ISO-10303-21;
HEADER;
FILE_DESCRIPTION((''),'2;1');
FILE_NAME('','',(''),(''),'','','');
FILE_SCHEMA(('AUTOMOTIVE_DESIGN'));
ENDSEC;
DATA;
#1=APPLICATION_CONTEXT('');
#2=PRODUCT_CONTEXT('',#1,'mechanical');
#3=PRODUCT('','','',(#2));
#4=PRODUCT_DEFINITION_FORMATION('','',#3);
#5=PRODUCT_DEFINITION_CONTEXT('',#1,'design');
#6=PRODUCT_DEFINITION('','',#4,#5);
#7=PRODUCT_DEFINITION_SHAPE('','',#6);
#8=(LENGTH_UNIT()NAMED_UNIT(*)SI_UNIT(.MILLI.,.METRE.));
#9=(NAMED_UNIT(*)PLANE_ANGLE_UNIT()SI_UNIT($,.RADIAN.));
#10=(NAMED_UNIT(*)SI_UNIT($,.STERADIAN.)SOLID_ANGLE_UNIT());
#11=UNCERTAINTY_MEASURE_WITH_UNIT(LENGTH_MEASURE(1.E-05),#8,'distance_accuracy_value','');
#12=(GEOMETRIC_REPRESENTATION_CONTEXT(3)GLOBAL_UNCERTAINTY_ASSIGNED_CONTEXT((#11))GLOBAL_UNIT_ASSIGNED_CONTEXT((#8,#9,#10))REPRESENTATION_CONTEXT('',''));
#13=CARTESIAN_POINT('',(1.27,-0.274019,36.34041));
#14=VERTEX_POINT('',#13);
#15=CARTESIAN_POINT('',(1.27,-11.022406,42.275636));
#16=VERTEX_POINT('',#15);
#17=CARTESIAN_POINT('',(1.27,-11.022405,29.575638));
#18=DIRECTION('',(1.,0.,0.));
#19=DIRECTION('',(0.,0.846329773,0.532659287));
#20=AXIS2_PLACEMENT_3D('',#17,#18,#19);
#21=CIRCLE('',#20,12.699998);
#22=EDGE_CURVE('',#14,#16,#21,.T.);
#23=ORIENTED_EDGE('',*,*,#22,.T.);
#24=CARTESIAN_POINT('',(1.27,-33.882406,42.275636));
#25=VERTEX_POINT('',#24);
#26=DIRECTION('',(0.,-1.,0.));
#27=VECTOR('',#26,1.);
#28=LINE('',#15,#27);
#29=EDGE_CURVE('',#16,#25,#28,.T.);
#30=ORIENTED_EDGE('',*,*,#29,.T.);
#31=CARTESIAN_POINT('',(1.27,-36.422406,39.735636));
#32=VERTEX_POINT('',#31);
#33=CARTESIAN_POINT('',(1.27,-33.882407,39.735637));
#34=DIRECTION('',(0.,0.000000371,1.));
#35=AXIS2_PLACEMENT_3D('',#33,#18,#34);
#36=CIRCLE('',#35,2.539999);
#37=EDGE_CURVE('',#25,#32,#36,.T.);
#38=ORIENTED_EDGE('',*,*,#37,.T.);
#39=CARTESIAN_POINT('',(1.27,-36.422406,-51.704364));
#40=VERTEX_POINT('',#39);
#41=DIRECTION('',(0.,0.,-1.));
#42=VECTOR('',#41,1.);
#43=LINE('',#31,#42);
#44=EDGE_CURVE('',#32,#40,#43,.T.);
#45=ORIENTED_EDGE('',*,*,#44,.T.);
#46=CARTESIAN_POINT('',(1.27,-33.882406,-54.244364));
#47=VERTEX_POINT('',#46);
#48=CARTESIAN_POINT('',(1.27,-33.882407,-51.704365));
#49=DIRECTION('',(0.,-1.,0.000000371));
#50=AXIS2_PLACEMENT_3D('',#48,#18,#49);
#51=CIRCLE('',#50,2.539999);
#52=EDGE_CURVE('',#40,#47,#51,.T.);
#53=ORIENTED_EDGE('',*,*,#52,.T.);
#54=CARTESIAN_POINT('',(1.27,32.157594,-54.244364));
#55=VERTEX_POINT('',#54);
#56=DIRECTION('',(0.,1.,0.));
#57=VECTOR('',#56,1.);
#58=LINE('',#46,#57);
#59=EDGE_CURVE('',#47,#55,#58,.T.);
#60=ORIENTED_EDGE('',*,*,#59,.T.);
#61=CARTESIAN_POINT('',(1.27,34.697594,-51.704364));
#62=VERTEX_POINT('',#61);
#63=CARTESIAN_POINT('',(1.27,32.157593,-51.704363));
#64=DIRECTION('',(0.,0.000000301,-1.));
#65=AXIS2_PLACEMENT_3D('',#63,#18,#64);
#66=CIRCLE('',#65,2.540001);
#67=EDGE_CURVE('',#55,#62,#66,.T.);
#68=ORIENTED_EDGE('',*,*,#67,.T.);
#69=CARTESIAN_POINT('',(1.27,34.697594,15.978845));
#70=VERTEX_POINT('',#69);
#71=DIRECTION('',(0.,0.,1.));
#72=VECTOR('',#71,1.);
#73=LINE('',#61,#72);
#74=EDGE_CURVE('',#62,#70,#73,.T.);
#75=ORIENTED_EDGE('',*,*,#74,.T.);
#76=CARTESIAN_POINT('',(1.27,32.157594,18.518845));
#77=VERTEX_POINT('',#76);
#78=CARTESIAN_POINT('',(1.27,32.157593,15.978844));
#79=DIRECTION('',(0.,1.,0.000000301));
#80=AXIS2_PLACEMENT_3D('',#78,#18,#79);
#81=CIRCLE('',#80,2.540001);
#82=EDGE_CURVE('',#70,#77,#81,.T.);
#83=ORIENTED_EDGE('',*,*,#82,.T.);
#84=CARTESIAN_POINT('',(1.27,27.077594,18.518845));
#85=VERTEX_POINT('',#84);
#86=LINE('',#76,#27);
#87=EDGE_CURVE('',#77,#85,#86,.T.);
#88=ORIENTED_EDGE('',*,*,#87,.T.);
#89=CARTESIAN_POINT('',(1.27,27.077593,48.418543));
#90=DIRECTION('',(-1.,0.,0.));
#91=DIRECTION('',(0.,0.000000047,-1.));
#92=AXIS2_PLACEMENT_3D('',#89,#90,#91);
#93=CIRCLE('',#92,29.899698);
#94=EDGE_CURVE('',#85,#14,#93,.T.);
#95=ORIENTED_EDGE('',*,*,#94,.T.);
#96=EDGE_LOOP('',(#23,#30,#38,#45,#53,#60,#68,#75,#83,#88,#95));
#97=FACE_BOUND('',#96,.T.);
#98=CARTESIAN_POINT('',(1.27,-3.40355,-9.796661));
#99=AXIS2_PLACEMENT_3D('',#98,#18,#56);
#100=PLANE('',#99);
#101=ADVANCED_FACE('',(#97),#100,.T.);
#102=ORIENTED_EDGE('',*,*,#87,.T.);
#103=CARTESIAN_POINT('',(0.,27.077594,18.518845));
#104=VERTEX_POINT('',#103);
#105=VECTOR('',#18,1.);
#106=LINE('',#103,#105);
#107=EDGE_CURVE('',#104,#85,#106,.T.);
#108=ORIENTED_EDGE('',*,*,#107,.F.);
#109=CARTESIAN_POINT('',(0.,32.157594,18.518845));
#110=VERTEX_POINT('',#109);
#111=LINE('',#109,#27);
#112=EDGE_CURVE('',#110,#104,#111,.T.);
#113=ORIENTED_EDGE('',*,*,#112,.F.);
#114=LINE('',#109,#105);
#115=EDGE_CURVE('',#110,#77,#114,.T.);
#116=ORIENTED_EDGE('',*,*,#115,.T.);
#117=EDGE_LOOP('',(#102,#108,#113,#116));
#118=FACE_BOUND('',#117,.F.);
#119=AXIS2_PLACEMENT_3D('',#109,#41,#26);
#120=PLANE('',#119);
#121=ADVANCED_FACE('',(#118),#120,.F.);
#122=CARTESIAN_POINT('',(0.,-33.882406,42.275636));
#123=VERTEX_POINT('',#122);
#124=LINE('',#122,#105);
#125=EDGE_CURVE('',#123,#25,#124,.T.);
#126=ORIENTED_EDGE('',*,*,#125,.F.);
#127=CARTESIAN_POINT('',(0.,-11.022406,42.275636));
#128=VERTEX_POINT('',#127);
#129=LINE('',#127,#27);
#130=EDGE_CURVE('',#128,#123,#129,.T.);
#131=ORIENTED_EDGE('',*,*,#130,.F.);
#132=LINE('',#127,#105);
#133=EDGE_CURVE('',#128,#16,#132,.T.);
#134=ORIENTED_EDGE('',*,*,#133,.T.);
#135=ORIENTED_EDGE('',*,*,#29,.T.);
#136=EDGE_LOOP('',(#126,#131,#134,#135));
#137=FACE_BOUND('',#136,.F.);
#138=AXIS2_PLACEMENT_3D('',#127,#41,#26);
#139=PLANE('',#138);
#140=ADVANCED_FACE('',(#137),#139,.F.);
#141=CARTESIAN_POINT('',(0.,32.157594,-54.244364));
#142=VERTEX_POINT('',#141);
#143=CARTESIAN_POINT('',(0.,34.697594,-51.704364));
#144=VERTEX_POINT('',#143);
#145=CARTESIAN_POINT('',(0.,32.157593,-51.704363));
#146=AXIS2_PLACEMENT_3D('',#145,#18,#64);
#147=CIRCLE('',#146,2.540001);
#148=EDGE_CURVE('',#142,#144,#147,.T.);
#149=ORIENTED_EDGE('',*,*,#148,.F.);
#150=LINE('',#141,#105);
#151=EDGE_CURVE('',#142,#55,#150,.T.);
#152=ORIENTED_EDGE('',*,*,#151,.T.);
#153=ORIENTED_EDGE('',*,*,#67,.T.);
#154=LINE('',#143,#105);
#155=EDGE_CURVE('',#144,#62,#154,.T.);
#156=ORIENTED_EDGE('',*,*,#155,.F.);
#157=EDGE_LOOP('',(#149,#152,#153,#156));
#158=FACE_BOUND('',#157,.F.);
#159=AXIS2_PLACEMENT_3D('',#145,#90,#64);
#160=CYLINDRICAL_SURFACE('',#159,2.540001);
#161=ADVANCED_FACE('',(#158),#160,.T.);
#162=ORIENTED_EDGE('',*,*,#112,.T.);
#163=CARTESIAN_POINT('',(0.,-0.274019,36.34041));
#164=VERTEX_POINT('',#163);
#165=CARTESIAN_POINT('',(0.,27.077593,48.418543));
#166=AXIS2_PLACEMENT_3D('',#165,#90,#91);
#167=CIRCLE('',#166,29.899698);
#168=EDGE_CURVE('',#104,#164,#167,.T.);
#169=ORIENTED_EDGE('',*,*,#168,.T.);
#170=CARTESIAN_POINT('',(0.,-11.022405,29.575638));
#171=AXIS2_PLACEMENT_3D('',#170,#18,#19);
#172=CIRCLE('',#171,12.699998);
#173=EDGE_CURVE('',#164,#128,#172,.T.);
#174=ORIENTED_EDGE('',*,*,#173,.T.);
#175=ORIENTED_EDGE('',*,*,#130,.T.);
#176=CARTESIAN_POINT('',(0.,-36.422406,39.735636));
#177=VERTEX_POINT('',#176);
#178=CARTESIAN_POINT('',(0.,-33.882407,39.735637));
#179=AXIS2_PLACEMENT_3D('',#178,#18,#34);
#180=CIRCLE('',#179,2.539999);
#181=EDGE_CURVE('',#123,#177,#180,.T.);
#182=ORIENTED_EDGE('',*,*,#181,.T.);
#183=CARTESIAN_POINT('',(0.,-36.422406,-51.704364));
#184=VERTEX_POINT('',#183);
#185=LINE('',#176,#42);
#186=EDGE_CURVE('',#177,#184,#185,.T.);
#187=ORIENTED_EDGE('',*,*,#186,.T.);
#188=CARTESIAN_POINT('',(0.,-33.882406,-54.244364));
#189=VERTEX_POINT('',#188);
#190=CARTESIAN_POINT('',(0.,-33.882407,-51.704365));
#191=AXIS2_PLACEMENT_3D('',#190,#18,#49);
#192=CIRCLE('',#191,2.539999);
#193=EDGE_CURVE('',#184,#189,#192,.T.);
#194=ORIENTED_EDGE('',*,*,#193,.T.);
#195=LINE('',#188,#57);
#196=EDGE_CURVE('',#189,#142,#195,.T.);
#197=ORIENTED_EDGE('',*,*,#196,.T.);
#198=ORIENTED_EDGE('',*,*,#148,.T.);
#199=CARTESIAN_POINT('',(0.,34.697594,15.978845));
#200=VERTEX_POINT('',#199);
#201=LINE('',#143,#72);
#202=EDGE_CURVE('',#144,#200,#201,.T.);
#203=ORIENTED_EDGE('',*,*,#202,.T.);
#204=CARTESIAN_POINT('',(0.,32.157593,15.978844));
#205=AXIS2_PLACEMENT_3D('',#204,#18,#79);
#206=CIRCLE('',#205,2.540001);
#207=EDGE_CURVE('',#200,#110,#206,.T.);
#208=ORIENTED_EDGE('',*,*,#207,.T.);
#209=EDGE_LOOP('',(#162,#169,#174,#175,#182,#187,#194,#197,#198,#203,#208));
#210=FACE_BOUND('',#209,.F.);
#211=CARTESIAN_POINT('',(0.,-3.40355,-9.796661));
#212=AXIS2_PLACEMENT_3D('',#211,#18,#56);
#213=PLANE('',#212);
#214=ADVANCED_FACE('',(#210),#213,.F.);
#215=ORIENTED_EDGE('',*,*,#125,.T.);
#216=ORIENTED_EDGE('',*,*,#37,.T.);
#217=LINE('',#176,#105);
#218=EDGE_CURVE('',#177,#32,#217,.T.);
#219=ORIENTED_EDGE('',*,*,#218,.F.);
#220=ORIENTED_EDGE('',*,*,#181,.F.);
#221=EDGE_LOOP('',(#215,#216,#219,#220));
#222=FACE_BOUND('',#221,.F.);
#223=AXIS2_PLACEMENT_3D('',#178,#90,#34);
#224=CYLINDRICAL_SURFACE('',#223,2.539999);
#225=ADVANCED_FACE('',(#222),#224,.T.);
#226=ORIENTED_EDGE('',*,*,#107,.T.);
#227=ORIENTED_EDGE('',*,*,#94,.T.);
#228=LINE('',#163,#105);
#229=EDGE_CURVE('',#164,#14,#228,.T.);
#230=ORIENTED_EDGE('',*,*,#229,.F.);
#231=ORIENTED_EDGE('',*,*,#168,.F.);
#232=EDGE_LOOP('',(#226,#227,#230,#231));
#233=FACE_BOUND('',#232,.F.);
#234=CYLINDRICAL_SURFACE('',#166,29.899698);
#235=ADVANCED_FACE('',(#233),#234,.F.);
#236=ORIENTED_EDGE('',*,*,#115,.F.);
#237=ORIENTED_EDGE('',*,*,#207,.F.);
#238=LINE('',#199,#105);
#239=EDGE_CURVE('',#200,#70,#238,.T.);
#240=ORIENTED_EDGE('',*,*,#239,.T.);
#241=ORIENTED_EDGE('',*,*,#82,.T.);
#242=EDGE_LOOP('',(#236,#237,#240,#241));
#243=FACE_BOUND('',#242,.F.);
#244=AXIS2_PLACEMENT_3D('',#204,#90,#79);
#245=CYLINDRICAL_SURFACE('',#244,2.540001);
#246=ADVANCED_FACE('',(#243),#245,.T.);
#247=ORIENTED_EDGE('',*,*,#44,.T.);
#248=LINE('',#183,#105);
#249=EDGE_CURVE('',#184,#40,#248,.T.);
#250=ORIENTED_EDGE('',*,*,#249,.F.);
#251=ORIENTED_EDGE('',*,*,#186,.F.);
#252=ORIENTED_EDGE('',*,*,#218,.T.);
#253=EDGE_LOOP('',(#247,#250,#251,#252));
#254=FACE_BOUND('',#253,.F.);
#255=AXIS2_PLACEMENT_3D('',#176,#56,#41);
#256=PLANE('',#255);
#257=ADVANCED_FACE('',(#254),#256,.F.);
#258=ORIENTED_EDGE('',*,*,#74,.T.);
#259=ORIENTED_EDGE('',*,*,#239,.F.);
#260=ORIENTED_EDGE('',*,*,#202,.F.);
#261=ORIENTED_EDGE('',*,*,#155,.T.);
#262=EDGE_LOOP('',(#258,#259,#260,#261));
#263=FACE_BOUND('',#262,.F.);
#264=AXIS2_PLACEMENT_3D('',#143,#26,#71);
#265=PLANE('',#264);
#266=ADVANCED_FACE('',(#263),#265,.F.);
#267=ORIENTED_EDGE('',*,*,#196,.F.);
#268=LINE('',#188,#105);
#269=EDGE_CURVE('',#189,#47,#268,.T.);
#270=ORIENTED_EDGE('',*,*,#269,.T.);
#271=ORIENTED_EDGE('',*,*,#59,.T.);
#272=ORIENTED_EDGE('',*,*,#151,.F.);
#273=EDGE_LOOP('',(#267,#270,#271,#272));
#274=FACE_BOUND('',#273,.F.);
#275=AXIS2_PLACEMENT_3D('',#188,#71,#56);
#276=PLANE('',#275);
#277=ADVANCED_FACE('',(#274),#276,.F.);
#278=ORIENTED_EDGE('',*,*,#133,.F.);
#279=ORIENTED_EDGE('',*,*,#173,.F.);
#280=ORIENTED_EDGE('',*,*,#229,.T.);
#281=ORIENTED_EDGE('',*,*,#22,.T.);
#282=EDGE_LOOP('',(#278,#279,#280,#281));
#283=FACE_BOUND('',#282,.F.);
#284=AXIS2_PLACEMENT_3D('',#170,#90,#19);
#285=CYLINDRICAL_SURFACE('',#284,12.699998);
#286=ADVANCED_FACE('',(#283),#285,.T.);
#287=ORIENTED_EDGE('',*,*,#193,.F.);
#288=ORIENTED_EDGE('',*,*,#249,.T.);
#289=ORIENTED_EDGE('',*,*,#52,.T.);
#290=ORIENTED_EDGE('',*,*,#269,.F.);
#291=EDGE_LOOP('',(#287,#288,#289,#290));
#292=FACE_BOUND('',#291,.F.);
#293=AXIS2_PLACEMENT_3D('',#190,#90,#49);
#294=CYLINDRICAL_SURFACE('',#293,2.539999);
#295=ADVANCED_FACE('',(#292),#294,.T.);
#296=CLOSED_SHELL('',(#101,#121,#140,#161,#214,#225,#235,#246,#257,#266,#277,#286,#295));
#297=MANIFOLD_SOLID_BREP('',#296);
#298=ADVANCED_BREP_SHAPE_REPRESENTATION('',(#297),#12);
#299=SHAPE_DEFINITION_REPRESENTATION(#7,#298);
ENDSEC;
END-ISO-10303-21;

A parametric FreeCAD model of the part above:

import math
import FreeCAD as App
import Part
import Sketcher
Q = App.Units.Quantity

doc = App.newDocument("Part")
body = doc.addObject("PartDesign::Body", "Body")

sketch1 = body.newObject("Sketcher::SketchObject", "Sketch")
sketch1.AttachmentSupport = (doc.getObject("YZ_Plane"), [""])
sketch1.MapMode = "FlatFace"
sketch1.addGeometry([
    Part.LineSegment(App.Vector(-11.022406, 42.275636, 0), App.Vector(-33.882406, 42.275636, 0)),
    Part.ArcOfCircle(Part.Circle(App.Vector(-33.882407, 39.735637, 0), App.Vector(0, 0, 1), 2.539999), math.radians(89.999979), math.radians(180.000021)),
    Part.LineSegment(App.Vector(-36.422406, 39.735636, 0), App.Vector(-36.422406, -51.704364, 0)),
    Part.ArcOfCircle(Part.Circle(App.Vector(-33.882407, -51.704365, 0), App.Vector(0, 0, 1), 2.539999), math.radians(179.999979), math.radians(270.000021)),
    Part.LineSegment(App.Vector(-33.882406, -54.244364, 0), App.Vector(32.157594, -54.244364, 0)),
    Part.ArcOfCircle(Part.Circle(App.Vector(32.157593, -51.704363, 0), App.Vector(0, 0, 1), 2.540001), math.radians(-89.999983), math.radians(-0.000017)),
    Part.LineSegment(App.Vector(34.697594, -51.704364, 0), App.Vector(34.697594, 15.978845, 0)),
    Part.ArcOfCircle(Part.Circle(App.Vector(32.157593, 15.978844, 0), App.Vector(0, 0, 1), 2.540001), math.radians(0.000017), math.radians(89.999983)),
    Part.LineSegment(App.Vector(32.157594, 18.518845, 0), App.Vector(27.077594, 18.518845, 0)),
    Part.ArcOfCircle(Part.Circle(App.Vector(27.077593, 48.418543, 0), App.Vector(0, 0, 1), 29.899698), math.radians(-156.17434), math.radians(-89.999997)),
    Part.ArcOfCircle(Part.Circle(App.Vector(-11.022405, 29.575638, 0), App.Vector(0, 0, 1), 12.699998), math.radians(32.185309), math.radians(90.000004)),
], False)
sketch1.addConstraint([
    Sketcher.Constraint("Tangent", 0, 2, 1, 1),
    Sketcher.Constraint("Tangent", 1, 2, 2, 1),
    Sketcher.Constraint("Tangent", 2, 2, 3, 1),
    Sketcher.Constraint("Tangent", 3, 2, 4, 1),
    Sketcher.Constraint("Tangent", 4, 2, 5, 1),
    Sketcher.Constraint("Tangent", 5, 2, 6, 1),
    Sketcher.Constraint("Tangent", 6, 2, 7, 1),
    Sketcher.Constraint("Tangent", 7, 2, 8, 1),
    Sketcher.Constraint("Tangent", 8, 2, 9, 2),
    Sketcher.Constraint("Coincident", 9, 1, 10, 1),
    Sketcher.Constraint("Tangent", 10, 2, 0, 1),
    Sketcher.Constraint("Horizontal", 0),
    Sketcher.Constraint("Vertical", 2),
    Sketcher.Constraint("Horizontal", 4),
    Sketcher.Constraint("Vertical", 6),
    Sketcher.Constraint("Horizontal", 8),
    Sketcher.Constraint("Equal", 1, 3),
    Sketcher.Constraint("Equal", 3, 5),
    Sketcher.Constraint("Equal", 5, 7),
    Sketcher.Constraint("Radius", 1, Q("0.1 in")),
    Sketcher.Constraint("Radius", 10, Q("0.4999999 in")),
    Sketcher.Constraint("DistanceX", 0, 2, 0, 1, Q("0.9 in")),
    Sketcher.Constraint("DistanceX", 4, 1, 4, 2, Q("2.6 in")),
    Sketcher.Constraint("DistanceX", 8, 2, 8, 1, Q("0.2 in")),
    Sketcher.Constraint("DistanceY", 2, 2, 2, 1, Q("3.6 in")),
    Sketcher.Constraint("Radius", 9, 29.899698),
    Sketcher.Constraint("DistanceY", 6, 1, 6, 2, 67.683209),
    Sketcher.Constraint("DistanceY", -1, 1, 10, 3, 29.575638),
    Sketcher.Constraint("DistanceX", 9, 1, -1, 1, 0.274019),
])
pad1 = body.newObject("PartDesign::Pad", "Pad")
pad1.Profile = sketch1
pad1.Length = Q("0.05 in")

doc.recompute()
